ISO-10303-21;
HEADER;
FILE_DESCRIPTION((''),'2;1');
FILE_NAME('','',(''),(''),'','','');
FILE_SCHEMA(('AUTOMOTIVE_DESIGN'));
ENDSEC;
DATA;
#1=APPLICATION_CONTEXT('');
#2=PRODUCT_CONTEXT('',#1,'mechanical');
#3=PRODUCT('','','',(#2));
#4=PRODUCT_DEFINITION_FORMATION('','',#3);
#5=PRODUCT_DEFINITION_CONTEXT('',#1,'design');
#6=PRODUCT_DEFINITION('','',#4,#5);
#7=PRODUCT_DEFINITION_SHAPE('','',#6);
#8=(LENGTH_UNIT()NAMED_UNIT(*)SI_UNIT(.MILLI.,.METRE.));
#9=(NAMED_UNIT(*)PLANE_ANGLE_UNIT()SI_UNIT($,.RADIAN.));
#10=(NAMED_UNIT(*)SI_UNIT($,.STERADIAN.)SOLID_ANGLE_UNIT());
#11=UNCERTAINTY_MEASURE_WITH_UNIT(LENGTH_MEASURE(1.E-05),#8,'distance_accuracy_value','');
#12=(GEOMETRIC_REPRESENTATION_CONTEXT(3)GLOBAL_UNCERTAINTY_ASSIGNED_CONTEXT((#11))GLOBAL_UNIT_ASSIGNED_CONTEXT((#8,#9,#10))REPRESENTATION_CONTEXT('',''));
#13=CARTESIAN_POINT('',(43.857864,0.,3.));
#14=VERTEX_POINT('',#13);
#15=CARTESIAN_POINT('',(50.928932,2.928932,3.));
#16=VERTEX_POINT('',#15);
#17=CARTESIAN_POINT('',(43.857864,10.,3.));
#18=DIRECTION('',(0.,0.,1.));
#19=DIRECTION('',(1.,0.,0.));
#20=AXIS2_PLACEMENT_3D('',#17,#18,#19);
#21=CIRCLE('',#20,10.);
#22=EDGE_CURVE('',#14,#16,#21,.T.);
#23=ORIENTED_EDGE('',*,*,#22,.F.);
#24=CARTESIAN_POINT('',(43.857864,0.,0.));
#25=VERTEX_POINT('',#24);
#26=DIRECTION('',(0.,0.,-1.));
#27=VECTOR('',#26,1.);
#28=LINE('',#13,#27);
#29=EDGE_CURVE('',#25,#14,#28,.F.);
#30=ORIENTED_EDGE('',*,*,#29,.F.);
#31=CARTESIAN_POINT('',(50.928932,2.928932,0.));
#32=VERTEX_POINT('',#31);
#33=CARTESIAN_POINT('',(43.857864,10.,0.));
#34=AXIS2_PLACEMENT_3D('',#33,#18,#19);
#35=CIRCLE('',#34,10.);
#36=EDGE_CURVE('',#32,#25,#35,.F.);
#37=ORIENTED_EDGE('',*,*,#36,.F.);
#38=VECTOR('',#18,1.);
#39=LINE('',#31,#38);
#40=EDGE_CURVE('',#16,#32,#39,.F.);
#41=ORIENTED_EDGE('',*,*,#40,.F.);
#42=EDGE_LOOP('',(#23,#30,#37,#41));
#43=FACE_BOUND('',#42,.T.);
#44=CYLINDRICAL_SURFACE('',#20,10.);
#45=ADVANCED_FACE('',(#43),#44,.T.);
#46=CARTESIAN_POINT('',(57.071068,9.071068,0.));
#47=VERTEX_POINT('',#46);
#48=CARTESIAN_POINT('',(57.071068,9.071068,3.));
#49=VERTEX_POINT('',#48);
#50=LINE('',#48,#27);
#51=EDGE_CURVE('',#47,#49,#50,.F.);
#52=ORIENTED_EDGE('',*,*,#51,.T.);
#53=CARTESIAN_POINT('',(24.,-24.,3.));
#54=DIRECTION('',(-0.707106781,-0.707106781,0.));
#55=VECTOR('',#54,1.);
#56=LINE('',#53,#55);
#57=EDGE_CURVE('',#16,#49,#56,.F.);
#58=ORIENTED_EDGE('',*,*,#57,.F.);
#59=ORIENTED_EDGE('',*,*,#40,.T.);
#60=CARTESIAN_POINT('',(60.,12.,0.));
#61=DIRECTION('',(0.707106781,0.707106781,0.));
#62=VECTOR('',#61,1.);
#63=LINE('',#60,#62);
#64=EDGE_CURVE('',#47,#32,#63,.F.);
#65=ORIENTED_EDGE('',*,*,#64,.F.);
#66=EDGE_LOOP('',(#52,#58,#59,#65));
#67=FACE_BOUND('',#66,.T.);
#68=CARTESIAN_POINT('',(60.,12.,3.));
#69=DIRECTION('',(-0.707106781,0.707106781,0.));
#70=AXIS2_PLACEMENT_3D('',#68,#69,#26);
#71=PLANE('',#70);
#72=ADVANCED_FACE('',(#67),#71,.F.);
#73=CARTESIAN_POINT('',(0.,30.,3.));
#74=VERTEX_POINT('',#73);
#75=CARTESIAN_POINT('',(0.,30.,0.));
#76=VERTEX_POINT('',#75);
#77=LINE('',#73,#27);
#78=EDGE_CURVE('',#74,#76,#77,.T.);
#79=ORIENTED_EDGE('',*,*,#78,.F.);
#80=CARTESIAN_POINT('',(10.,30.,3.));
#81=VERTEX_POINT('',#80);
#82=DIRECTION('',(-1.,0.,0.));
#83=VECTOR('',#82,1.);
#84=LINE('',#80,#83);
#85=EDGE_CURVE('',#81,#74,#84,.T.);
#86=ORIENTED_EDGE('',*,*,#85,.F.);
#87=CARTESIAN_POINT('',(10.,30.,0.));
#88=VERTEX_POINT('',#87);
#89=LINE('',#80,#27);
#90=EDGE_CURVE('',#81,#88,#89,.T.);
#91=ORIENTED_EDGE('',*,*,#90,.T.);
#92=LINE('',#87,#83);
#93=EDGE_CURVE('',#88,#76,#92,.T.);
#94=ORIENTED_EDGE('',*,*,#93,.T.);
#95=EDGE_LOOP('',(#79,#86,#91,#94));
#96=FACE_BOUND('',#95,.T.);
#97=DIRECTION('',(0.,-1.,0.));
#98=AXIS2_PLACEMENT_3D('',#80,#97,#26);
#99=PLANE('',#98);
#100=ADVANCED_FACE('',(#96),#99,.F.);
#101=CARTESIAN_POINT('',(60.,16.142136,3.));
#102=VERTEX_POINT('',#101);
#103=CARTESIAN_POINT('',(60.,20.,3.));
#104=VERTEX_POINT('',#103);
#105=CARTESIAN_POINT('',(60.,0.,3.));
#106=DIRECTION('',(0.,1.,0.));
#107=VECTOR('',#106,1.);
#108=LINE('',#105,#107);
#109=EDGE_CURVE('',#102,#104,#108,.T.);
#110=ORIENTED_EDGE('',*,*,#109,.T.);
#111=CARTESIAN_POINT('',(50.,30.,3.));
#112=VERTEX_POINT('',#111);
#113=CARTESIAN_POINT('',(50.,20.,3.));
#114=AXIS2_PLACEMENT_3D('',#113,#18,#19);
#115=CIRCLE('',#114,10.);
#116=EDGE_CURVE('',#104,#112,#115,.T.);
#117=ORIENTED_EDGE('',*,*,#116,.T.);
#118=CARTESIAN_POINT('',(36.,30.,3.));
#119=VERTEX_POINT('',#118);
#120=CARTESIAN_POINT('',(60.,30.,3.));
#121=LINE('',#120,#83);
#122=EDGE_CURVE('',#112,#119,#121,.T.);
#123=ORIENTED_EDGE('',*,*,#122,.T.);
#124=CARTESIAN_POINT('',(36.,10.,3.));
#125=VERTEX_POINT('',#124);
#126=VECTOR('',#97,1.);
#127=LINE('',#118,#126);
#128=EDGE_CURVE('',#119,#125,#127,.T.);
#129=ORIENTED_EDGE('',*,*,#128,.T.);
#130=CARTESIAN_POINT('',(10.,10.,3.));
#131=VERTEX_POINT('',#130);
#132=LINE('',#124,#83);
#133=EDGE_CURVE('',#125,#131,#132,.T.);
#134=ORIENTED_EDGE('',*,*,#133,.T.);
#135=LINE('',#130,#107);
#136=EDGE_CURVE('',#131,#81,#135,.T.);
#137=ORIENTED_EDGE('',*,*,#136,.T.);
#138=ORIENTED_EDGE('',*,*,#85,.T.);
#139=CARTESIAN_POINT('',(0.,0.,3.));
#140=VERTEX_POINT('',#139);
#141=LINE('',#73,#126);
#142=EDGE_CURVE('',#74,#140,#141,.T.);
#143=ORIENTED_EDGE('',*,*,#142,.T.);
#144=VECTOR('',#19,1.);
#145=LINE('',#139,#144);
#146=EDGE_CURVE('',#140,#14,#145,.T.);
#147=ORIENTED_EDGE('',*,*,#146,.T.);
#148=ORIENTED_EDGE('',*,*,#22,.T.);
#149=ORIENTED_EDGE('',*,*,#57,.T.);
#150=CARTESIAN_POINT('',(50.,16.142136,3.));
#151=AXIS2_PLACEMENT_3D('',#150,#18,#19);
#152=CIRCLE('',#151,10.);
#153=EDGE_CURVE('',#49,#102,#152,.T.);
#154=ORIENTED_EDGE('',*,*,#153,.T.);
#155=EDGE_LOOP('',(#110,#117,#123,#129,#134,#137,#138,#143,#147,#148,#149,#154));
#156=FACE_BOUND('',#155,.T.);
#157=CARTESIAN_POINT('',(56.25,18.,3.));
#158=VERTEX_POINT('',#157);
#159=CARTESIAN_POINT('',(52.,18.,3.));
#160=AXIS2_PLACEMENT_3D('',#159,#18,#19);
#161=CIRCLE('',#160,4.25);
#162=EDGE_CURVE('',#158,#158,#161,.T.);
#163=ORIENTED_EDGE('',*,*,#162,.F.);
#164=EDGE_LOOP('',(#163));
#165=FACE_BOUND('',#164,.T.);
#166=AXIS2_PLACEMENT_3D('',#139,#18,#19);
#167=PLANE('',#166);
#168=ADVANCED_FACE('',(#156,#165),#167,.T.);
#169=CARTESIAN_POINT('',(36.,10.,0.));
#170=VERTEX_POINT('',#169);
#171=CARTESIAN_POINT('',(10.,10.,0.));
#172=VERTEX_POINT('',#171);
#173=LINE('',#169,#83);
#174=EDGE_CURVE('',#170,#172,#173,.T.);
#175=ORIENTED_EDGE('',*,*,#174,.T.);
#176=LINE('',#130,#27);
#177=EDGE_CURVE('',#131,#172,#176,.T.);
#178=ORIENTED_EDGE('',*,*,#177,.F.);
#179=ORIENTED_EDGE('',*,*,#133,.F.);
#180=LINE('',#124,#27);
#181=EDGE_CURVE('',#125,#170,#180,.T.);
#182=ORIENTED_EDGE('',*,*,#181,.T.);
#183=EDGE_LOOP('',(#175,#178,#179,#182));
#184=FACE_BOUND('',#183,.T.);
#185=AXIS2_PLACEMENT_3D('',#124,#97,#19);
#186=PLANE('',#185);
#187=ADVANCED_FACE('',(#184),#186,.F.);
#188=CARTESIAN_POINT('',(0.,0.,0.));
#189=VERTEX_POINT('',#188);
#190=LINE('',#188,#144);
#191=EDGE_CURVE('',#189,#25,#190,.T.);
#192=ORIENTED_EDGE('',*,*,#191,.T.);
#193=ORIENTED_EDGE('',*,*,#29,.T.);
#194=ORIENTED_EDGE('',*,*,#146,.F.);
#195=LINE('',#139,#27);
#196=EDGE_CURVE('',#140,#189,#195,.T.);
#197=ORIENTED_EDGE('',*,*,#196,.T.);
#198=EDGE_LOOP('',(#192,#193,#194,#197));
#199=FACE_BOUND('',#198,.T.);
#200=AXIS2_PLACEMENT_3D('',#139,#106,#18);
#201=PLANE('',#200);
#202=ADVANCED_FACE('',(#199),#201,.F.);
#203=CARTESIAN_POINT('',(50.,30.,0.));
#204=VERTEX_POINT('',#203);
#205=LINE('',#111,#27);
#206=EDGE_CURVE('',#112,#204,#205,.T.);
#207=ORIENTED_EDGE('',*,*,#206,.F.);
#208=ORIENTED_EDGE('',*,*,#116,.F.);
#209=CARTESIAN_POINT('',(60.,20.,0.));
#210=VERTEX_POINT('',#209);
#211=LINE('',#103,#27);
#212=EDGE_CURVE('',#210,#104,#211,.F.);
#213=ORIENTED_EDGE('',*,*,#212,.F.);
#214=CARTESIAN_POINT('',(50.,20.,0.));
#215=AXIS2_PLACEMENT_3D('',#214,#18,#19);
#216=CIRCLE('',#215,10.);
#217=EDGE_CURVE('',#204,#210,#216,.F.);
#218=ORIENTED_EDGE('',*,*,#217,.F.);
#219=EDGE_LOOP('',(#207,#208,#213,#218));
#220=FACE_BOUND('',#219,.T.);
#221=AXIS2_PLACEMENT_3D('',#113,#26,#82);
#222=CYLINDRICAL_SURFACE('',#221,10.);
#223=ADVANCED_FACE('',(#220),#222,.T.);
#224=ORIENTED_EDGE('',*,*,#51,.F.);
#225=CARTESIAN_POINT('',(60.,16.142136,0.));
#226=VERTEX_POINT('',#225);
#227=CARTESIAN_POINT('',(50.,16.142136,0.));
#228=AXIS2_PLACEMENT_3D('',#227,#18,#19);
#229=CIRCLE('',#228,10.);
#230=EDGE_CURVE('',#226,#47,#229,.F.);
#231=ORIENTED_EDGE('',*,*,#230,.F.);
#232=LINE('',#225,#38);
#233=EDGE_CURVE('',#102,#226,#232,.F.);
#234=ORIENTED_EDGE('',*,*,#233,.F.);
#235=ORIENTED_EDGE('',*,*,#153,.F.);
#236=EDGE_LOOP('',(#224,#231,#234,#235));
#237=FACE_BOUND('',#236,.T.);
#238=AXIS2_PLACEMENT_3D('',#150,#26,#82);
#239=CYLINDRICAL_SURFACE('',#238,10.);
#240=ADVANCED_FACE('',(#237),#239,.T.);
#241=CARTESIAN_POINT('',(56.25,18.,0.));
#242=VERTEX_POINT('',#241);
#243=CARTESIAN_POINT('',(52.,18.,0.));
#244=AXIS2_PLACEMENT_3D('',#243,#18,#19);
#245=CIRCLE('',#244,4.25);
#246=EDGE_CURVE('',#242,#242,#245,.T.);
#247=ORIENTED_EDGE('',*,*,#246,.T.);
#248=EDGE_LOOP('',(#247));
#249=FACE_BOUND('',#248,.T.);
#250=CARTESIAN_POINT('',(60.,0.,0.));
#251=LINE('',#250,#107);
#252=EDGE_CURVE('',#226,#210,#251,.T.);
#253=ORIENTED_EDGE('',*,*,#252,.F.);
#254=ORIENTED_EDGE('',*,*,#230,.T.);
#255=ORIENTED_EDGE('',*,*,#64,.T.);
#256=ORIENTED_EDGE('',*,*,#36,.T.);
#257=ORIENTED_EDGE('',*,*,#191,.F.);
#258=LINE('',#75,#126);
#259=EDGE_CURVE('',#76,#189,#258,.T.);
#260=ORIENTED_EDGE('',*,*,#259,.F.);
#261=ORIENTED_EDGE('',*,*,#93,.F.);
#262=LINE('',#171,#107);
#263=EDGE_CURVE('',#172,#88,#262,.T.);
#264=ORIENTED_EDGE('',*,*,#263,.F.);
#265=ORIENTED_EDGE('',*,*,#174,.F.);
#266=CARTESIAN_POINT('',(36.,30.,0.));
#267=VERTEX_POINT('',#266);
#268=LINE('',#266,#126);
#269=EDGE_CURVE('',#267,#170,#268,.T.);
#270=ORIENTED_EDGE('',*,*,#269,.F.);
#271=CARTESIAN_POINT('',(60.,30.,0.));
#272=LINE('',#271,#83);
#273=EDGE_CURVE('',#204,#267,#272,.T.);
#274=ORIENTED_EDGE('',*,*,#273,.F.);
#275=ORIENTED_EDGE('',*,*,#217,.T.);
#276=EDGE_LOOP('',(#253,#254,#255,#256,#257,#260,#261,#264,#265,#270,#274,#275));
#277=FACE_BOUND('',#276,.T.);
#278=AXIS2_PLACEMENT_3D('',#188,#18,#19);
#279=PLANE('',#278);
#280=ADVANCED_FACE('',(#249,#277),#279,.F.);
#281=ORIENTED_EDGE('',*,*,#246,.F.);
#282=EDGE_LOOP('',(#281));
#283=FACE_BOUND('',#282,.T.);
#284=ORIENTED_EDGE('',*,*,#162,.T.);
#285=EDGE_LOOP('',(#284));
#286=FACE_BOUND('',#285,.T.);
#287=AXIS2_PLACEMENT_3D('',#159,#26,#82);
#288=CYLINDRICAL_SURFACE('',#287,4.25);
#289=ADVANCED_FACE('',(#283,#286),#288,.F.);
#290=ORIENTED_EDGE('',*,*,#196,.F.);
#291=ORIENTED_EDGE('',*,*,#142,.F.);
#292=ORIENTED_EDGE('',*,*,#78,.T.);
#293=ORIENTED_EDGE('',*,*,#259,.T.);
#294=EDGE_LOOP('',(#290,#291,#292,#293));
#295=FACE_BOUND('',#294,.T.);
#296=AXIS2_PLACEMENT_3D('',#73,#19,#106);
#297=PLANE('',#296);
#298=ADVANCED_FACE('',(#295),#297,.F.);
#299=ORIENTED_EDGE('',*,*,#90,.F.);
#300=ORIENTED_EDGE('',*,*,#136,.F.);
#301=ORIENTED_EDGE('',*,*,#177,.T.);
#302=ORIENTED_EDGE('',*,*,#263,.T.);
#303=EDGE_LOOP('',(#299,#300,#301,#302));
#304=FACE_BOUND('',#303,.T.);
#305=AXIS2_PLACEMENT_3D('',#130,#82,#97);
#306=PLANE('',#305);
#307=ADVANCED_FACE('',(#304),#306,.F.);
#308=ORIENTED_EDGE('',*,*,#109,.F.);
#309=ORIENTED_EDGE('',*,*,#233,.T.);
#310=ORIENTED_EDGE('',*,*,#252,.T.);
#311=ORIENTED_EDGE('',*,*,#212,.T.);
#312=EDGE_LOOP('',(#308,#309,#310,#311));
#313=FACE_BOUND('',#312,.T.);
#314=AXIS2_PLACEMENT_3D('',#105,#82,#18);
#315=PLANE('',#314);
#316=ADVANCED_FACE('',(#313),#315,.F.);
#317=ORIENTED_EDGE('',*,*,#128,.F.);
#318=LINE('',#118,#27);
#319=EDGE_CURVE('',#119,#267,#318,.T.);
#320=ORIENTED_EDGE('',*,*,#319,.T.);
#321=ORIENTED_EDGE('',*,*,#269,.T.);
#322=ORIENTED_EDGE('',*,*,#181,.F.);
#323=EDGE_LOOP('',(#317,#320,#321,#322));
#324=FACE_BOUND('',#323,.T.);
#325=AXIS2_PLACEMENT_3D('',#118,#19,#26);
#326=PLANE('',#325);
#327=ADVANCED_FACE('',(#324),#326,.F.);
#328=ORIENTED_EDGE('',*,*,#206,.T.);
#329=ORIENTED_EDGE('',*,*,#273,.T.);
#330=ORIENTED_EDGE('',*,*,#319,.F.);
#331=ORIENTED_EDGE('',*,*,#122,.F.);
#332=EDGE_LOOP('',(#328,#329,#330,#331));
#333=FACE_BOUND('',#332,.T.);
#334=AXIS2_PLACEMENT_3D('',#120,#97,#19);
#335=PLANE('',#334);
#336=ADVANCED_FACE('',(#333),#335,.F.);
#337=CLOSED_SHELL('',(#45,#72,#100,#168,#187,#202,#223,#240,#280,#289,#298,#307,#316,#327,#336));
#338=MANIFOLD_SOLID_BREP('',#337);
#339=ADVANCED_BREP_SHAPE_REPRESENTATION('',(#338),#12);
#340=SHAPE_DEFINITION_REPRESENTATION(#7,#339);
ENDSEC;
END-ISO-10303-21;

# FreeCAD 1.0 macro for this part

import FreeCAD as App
import Part
import Sketcher


def edges_at(feature, points):
    """Names of the edges that pass closest to the given points."""
    edges = feature.Shape.Edges
    near = lambda p: min(range(len(edges)), key=lambda i: edges[i].distToShape(Part.Vertex(*p))[0])
    return sorted({f"Edge{near(p) + 1}" for p in points})


def add_polygon(sketch, points):
    """Adds a closed chain of lines whose ends are joined by coincident constraints."""
    first, n = sketch.GeometryCount, len(points)
    for a, b in zip(points, points[1:] + points[:1]):
        sketch.addGeometry(Part.LineSegment(App.Vector(*a, 0), App.Vector(*b, 0)), False)
    for i in range(n):
        sketch.addConstraint(Sketcher.Constraint("Coincident", first + i, 2, first + (i + 1) % n, 1))

doc = App.newDocument("Part")
body = doc.addObject("PartDesign::Body", "Body")

# Sketch on XY plane
sketch1 = body.newObject("Sketcher::SketchObject", "Sketch")
sketch1.AttachmentSupport = (doc.getObject("XY_Plane"), [""])
sketch1.MapMode = "FlatFace"
add_polygon(sketch1, [(0, 30), (0, 0), (60, 0), (60, 30), (36, 30), (36, 10), (10, 10), (10, 30)])  # lines 0-7
sketch1.addGeometry(Part.Circle(App.Vector(52, 18, 0), App.Vector(0, 0, 1), 4.2), False)  # 8
sketch1.addConstraint([
    Sketcher.Constraint("Vertical", 0),
    Sketcher.Constraint("Horizontal", 1),
    Sketcher.Constraint("Vertical", 2),
    Sketcher.Constraint("Horizontal", 3),
    Sketcher.Constraint("Vertical", 4),
    Sketcher.Constraint("Horizontal", 5),
    Sketcher.Constraint("Vertical", 6),
    Sketcher.Constraint("Horizontal", 7),
    Sketcher.Constraint("Coincident", 0, 2, -1, 1),
    Sketcher.Constraint("Horizontal", 3, 2, 6, 2),
    Sketcher.Constraint("Diameter", 8, 8.5),
    Sketcher.Constraint("DistanceX", 1, 1, 1, 2, 60.0),
    Sketcher.Constraint("DistanceX", 3, 2, 3, 1, 24.0),
    Sketcher.Constraint("DistanceX", 5, 2, 5, 1, 26.0),
    Sketcher.Constraint("DistanceY", 0, 2, 0, 1, 30.0),
    Sketcher.Constraint("DistanceY", 4, 2, 4, 1, 20.0),
    Sketcher.Constraint("DistanceX", -1, 1, 8, 3, 52.0),
    Sketcher.Constraint("DistanceY", -1, 1, 8, 3, 18.0),
])
pad1 = body.newObject("PartDesign::Pad", "Pad")
pad1.Profile = sketch1
pad1.Length = 3
doc.recompute()

chamfer = body.newObject("PartDesign::Chamfer", "Chamfer")
chamfer.Base = (pad1, edges_at(pad1, [(60, 0, 1.5)]))
chamfer.Size = 12
doc.recompute()

fillet = body.newObject("PartDesign::Fillet", "Fillet")
fillet.Base = (chamfer, edges_at(chamfer, [(60, 30, 1.5)]))
fillet.Radius = 10
doc.recompute()

fillet2 = body.newObject("PartDesign::Fillet", "Fillet001")
fillet2.Base = (fillet, edges_at(fillet, [(60, 12, 1.5), (48, 0, 1.5)]))
fillet2.Radius = 10

doc.recompute()
